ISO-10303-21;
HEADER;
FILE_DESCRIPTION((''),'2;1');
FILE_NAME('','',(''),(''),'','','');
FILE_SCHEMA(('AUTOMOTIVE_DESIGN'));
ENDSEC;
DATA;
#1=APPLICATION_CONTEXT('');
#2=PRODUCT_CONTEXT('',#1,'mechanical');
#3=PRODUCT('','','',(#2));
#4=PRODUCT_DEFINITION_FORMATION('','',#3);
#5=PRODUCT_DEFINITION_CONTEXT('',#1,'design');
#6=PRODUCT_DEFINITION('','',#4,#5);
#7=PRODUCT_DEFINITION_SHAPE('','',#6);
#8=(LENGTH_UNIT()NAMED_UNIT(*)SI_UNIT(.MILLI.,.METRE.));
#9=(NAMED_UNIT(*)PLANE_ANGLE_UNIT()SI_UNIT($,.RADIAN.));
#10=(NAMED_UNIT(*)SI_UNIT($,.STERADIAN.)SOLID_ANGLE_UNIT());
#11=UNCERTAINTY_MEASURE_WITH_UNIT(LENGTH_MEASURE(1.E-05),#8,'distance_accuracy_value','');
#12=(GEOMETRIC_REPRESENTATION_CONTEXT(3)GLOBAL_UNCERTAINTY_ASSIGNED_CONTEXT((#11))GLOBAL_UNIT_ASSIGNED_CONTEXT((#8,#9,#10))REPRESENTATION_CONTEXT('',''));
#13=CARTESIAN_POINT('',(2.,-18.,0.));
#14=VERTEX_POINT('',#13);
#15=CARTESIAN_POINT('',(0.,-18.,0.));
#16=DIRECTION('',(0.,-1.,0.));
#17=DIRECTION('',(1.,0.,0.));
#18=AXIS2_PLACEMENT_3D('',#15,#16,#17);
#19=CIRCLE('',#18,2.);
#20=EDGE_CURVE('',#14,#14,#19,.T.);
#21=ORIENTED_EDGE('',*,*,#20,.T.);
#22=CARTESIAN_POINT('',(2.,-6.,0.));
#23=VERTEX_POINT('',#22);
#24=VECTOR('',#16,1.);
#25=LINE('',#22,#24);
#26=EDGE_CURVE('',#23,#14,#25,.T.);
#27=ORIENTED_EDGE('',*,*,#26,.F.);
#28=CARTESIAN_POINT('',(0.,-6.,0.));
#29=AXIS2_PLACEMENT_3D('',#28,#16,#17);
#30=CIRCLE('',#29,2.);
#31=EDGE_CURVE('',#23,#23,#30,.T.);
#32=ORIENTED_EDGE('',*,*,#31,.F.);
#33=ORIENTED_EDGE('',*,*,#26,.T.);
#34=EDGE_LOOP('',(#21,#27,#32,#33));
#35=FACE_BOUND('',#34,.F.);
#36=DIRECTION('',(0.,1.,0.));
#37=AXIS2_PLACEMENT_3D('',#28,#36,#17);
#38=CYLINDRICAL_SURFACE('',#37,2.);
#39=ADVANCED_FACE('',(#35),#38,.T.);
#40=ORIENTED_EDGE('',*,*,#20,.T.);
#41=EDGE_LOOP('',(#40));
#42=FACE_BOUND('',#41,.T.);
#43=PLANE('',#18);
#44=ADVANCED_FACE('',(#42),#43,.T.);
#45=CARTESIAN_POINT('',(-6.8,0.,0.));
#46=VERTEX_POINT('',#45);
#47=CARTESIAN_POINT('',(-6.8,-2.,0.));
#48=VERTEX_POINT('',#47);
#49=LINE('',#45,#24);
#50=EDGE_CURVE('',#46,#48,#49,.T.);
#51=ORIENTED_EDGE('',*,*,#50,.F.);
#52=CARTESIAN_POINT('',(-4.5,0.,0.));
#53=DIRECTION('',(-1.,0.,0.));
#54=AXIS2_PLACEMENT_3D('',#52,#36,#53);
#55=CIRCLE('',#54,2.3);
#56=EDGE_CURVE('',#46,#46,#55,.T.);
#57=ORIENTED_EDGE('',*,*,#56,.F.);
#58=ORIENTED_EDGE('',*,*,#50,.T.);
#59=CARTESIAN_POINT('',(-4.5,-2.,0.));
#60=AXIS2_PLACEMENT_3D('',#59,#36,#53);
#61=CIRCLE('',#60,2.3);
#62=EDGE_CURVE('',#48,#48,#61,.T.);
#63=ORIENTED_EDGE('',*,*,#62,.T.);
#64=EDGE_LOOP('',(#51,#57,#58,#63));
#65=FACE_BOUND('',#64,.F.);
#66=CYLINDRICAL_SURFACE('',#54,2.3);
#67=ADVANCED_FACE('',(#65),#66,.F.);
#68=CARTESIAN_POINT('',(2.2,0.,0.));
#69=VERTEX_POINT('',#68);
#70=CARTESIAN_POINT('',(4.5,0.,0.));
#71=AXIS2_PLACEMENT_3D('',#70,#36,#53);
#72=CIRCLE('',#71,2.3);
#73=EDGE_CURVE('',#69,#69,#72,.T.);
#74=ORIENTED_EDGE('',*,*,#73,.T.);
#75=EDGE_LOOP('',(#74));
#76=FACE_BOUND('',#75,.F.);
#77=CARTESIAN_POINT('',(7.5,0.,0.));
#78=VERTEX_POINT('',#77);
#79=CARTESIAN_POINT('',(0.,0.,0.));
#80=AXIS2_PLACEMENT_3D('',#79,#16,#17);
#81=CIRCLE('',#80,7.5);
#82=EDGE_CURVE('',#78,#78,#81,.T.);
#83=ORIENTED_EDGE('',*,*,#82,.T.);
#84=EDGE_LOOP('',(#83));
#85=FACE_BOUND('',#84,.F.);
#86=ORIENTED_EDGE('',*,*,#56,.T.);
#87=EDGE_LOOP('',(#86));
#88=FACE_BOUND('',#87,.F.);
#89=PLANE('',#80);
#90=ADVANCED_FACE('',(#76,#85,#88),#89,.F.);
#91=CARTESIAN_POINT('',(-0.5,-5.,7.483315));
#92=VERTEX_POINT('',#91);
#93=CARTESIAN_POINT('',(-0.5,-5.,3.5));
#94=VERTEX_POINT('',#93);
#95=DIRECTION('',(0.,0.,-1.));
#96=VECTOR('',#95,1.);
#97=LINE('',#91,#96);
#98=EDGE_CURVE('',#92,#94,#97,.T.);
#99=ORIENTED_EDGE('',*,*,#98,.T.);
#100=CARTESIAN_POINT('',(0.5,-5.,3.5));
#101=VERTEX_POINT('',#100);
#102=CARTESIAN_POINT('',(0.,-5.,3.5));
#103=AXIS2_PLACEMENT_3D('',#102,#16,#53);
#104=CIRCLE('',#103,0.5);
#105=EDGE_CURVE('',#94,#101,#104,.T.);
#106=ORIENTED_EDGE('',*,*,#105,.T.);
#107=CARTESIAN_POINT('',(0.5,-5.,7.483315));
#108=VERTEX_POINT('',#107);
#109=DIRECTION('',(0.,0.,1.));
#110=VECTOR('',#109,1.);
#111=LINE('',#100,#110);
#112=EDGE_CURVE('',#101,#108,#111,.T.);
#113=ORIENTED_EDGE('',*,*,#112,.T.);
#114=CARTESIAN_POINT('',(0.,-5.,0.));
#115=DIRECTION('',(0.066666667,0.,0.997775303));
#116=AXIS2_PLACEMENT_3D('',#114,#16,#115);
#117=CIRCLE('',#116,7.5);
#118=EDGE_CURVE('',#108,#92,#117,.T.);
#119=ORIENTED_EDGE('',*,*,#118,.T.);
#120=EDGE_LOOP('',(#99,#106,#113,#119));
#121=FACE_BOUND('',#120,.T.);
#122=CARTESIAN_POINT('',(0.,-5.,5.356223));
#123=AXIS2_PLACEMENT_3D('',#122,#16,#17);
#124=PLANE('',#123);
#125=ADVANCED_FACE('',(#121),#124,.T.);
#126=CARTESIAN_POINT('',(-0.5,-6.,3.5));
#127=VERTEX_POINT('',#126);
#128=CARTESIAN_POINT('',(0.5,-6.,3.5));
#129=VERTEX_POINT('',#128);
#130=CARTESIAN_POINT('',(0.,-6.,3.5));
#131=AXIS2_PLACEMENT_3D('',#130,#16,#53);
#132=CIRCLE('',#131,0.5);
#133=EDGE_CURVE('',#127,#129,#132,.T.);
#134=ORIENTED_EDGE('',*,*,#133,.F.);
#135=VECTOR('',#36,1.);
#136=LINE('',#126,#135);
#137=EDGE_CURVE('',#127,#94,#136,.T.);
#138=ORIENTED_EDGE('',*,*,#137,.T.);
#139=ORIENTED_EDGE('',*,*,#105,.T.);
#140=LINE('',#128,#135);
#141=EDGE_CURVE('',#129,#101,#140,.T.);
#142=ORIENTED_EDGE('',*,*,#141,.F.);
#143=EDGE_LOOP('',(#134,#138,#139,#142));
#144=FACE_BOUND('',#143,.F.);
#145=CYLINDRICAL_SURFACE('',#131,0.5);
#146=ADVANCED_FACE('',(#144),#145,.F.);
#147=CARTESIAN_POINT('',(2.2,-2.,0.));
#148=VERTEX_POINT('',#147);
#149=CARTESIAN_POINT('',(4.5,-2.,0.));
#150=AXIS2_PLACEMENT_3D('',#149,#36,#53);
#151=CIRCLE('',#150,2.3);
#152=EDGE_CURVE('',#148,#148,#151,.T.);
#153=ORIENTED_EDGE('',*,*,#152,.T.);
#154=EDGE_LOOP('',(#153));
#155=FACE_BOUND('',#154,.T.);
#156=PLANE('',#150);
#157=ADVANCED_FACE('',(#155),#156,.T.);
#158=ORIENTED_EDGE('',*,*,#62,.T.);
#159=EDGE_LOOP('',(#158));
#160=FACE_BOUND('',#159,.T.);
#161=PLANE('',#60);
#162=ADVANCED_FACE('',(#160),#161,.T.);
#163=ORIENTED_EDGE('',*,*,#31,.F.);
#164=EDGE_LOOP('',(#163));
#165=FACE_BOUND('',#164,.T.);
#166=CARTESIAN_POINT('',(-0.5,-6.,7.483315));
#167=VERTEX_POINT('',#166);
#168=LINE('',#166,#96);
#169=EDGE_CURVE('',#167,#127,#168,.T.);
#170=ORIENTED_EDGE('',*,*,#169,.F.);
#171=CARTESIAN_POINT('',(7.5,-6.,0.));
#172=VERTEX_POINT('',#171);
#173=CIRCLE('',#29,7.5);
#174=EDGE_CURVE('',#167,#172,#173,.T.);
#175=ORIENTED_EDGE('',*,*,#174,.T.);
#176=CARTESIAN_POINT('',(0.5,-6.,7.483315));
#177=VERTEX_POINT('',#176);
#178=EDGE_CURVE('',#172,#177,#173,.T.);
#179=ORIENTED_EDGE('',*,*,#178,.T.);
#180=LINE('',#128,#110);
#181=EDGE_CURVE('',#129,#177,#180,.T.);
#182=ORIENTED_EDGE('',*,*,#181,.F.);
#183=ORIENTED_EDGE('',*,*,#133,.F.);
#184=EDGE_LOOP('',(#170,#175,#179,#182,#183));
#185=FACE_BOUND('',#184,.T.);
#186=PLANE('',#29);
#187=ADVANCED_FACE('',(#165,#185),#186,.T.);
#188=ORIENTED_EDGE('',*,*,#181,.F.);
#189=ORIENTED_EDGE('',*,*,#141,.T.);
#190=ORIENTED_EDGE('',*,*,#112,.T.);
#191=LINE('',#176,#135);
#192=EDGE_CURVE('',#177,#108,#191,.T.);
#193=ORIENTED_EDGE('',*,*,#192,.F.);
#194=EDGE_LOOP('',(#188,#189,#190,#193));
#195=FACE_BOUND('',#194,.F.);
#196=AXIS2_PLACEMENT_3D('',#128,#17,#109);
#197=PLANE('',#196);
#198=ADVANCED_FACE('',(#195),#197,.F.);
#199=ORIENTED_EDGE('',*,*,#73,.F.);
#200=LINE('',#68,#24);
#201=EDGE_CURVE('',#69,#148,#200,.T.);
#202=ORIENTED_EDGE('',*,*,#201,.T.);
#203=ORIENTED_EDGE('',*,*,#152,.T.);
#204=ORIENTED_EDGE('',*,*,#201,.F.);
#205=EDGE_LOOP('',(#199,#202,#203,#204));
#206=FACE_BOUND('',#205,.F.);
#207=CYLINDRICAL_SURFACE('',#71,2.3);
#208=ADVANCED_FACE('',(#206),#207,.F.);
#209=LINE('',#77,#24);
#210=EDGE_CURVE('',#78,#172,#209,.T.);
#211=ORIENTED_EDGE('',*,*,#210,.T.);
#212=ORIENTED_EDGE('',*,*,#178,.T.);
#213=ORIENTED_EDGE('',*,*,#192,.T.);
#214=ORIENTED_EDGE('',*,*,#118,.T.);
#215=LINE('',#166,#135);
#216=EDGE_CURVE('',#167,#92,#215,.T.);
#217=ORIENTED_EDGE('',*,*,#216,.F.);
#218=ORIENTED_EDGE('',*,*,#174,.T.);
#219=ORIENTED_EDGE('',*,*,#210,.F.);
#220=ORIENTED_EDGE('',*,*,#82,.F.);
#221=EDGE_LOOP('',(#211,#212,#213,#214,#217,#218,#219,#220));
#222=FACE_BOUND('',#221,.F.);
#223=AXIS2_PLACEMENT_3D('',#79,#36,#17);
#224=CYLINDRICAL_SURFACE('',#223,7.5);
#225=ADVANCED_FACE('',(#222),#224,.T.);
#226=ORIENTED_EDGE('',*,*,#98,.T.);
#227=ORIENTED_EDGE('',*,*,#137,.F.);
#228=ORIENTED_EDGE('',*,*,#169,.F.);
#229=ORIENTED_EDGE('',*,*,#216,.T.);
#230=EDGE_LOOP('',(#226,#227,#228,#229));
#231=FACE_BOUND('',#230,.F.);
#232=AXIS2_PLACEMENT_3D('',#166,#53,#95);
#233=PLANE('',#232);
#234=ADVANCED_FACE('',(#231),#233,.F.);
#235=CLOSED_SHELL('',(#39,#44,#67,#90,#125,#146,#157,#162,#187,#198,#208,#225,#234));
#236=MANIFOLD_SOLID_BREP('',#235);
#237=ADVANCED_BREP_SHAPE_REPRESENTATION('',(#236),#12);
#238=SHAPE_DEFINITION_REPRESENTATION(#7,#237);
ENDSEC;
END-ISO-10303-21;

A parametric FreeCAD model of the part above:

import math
import FreeCAD as App
import Part
import Sketcher

V = App.Vector

doc = App.newDocument("Part")
params = doc.addObject("Spreadsheet::Sheet", "Params")
for row, (alias, value) in enumerate([
    ("sketch1_diameter", "15 mm"),
    ("pad1_length", "6 mm"),
    ("sketch2_diameter", "4 mm"),
    ("pad2_length", "12 mm"),
    ("sketch3_diameter", "4.6 mm"),
    ("pocket1_length", "2 mm"),
    ("sketch4_radius", "7.5 mm"),
    ("sketch4_radius2", "0.5 mm"),
    ("pocket2_length", "1 mm"),
], start=1):
    params.set(f"A{row}", alias)
    params.set(f"B{row}", "=" + value)
    params.setAlias(f"B{row}", alias)

body = doc.addObject("PartDesign::Body", "Body")

sketch1 = body.newObject("Sketcher::SketchObject", "Sketch")
sketch1.AttachmentSupport = (doc.getObject("XZ_Plane"), [""])
sketch1.MapMode = "FlatFace"
sketch1.addGeometry(Part.Circle(V(0, 0, 0), V(0, 0, 1), 8), False)
sketch1.addConstraint(Sketcher.Constraint("Coincident", 0, 3, -1, 1))
sketch1.addConstraint(Sketcher.Constraint("Diameter", 0, 15.0))
sketch1.setExpression("Constraints[1]", "Params.sketch1_diameter")
pad1 = body.newObject("PartDesign::Pad", "Pad")
pad1.Profile = sketch1
pad1.setExpression("Length", "Params.pad1_length")

sketch2 = body.newObject("Sketcher::SketchObject", "Sketch001")
sketch2.AttachmentSupport = (doc.getObject("XZ_Plane"), [""])
sketch2.MapMode = "FlatFace"
sketch2.AttachmentOffset = App.Placement(V(0, 0, 6), App.Rotation())
sketch2.addGeometry(Part.Circle(V(0, 0, 0), V(0, 0, 1), 2), False)
sketch2.addConstraint(Sketcher.Constraint("Coincident", 0, 3, -1, 1))
sketch2.addConstraint(Sketcher.Constraint("Diameter", 0, 4.0))
sketch2.setExpression("Constraints[1]", "Params.sketch2_diameter")
pad2 = body.newObject("PartDesign::Pad", "Pad001")
pad2.Profile = sketch2
pad2.setExpression("Length", "Params.pad2_length")

sketch3 = body.newObject("Sketcher::SketchObject", "Sketch002")
sketch3.AttachmentSupport = (doc.getObject("XZ_Plane"), [""])
sketch3.MapMode = "FlatFace"
sketch3.addGeometry(Part.Circle(V(4.5, 0, 0), V(0, 0, 1), 2.3), False)
sketch3.addGeometry(Part.Circle(V(-4.5, 0, 0), V(0, 0, 1), 2.3), False)
sketch3.addConstraint(Sketcher.Constraint("Equal", 0, 1))
sketch3.addConstraint(Sketcher.Constraint("Symmetric", 0, 3, 1, 3, -1, 1))
sketch3.addConstraint(Sketcher.Constraint("PointOnObject", 0, 3, -1))
sketch3.addConstraint(Sketcher.Constraint("Diameter", 0, 4.6))
sketch3.addConstraint(Sketcher.Constraint("DistanceX", 1, 3, 0, 3, 9.0))
sketch3.setExpression("Constraints[3]", "Params.sketch3_diameter")
pocket1 = body.newObject("PartDesign::Pocket", "Pocket")
pocket1.Profile = sketch3
pocket1.setExpression("Length", "Params.pocket1_length")
pocket1.Reversed = True

sketch4 = body.newObject("Sketcher::SketchObject", "Sketch003")
sketch4.AttachmentSupport = (doc.getObject("XZ_Plane"), [""])
sketch4.MapMode = "FlatFace"
sketch4.AttachmentOffset = App.Placement(V(0, 0, 6), App.Rotation())
sketch4.addGeometry(Part.LineSegment(V(0.5, 3.5, 0), V(0.5, 7.5, 0)), False)
sketch4.addGeometry(Part.ArcOfCircle(Part.Circle(V(0, 0, 0), V(0, 0, 1), 7.5), math.radians(86.18), math.radians(93.82)), False)
sketch4.addGeometry(Part.LineSegment(V(-0.5, 7.5, 0), V(-0.5, 3.5, 0)), False)
sketch4.addGeometry(Part.ArcOfCircle(Part.Circle(V(0, 3.5, 0), V(0, 0, 1), 0.5), math.radians(180), math.radians(360)), False)
sketch4.addConstraint(Sketcher.Constraint("Coincident", 0, 2, 1, 1))
sketch4.addConstraint(Sketcher.Constraint("Coincident", 1, 2, 2, 1))
sketch4.addConstraint(Sketcher.Constraint("Tangent", 2, 2, 3, 1))
sketch4.addConstraint(Sketcher.Constraint("Tangent", 3, 2, 0, 1))
sketch4.addConstraint(Sketcher.Constraint("Vertical", 0))
sketch4.addConstraint(Sketcher.Constraint("Vertical", 2))
sketch4.addConstraint(Sketcher.Constraint("Coincident", 1, 3, -1, 1))
sketch4.addConstraint(Sketcher.Constraint("PointOnObject", 3, 3, -2))
sketch4.addConstraint(Sketcher.Constraint("Radius", 1, 7.5))
sketch4.addConstraint(Sketcher.Constraint("Radius", 3, 0.5))
sketch4.addConstraint(Sketcher.Constraint("DistanceY", -1, 1, 3, 3, 3.5))
sketch4.setExpression("Constraints[8]", "Params.sketch4_radius")
sketch4.setExpression("Constraints[9]", "Params.sketch4_radius2")
pocket2 = body.newObject("PartDesign::Pocket", "Pocket001")
pocket2.Profile = sketch4
pocket2.setExpression("Length", "Params.pocket2_length")

doc.recompute()
